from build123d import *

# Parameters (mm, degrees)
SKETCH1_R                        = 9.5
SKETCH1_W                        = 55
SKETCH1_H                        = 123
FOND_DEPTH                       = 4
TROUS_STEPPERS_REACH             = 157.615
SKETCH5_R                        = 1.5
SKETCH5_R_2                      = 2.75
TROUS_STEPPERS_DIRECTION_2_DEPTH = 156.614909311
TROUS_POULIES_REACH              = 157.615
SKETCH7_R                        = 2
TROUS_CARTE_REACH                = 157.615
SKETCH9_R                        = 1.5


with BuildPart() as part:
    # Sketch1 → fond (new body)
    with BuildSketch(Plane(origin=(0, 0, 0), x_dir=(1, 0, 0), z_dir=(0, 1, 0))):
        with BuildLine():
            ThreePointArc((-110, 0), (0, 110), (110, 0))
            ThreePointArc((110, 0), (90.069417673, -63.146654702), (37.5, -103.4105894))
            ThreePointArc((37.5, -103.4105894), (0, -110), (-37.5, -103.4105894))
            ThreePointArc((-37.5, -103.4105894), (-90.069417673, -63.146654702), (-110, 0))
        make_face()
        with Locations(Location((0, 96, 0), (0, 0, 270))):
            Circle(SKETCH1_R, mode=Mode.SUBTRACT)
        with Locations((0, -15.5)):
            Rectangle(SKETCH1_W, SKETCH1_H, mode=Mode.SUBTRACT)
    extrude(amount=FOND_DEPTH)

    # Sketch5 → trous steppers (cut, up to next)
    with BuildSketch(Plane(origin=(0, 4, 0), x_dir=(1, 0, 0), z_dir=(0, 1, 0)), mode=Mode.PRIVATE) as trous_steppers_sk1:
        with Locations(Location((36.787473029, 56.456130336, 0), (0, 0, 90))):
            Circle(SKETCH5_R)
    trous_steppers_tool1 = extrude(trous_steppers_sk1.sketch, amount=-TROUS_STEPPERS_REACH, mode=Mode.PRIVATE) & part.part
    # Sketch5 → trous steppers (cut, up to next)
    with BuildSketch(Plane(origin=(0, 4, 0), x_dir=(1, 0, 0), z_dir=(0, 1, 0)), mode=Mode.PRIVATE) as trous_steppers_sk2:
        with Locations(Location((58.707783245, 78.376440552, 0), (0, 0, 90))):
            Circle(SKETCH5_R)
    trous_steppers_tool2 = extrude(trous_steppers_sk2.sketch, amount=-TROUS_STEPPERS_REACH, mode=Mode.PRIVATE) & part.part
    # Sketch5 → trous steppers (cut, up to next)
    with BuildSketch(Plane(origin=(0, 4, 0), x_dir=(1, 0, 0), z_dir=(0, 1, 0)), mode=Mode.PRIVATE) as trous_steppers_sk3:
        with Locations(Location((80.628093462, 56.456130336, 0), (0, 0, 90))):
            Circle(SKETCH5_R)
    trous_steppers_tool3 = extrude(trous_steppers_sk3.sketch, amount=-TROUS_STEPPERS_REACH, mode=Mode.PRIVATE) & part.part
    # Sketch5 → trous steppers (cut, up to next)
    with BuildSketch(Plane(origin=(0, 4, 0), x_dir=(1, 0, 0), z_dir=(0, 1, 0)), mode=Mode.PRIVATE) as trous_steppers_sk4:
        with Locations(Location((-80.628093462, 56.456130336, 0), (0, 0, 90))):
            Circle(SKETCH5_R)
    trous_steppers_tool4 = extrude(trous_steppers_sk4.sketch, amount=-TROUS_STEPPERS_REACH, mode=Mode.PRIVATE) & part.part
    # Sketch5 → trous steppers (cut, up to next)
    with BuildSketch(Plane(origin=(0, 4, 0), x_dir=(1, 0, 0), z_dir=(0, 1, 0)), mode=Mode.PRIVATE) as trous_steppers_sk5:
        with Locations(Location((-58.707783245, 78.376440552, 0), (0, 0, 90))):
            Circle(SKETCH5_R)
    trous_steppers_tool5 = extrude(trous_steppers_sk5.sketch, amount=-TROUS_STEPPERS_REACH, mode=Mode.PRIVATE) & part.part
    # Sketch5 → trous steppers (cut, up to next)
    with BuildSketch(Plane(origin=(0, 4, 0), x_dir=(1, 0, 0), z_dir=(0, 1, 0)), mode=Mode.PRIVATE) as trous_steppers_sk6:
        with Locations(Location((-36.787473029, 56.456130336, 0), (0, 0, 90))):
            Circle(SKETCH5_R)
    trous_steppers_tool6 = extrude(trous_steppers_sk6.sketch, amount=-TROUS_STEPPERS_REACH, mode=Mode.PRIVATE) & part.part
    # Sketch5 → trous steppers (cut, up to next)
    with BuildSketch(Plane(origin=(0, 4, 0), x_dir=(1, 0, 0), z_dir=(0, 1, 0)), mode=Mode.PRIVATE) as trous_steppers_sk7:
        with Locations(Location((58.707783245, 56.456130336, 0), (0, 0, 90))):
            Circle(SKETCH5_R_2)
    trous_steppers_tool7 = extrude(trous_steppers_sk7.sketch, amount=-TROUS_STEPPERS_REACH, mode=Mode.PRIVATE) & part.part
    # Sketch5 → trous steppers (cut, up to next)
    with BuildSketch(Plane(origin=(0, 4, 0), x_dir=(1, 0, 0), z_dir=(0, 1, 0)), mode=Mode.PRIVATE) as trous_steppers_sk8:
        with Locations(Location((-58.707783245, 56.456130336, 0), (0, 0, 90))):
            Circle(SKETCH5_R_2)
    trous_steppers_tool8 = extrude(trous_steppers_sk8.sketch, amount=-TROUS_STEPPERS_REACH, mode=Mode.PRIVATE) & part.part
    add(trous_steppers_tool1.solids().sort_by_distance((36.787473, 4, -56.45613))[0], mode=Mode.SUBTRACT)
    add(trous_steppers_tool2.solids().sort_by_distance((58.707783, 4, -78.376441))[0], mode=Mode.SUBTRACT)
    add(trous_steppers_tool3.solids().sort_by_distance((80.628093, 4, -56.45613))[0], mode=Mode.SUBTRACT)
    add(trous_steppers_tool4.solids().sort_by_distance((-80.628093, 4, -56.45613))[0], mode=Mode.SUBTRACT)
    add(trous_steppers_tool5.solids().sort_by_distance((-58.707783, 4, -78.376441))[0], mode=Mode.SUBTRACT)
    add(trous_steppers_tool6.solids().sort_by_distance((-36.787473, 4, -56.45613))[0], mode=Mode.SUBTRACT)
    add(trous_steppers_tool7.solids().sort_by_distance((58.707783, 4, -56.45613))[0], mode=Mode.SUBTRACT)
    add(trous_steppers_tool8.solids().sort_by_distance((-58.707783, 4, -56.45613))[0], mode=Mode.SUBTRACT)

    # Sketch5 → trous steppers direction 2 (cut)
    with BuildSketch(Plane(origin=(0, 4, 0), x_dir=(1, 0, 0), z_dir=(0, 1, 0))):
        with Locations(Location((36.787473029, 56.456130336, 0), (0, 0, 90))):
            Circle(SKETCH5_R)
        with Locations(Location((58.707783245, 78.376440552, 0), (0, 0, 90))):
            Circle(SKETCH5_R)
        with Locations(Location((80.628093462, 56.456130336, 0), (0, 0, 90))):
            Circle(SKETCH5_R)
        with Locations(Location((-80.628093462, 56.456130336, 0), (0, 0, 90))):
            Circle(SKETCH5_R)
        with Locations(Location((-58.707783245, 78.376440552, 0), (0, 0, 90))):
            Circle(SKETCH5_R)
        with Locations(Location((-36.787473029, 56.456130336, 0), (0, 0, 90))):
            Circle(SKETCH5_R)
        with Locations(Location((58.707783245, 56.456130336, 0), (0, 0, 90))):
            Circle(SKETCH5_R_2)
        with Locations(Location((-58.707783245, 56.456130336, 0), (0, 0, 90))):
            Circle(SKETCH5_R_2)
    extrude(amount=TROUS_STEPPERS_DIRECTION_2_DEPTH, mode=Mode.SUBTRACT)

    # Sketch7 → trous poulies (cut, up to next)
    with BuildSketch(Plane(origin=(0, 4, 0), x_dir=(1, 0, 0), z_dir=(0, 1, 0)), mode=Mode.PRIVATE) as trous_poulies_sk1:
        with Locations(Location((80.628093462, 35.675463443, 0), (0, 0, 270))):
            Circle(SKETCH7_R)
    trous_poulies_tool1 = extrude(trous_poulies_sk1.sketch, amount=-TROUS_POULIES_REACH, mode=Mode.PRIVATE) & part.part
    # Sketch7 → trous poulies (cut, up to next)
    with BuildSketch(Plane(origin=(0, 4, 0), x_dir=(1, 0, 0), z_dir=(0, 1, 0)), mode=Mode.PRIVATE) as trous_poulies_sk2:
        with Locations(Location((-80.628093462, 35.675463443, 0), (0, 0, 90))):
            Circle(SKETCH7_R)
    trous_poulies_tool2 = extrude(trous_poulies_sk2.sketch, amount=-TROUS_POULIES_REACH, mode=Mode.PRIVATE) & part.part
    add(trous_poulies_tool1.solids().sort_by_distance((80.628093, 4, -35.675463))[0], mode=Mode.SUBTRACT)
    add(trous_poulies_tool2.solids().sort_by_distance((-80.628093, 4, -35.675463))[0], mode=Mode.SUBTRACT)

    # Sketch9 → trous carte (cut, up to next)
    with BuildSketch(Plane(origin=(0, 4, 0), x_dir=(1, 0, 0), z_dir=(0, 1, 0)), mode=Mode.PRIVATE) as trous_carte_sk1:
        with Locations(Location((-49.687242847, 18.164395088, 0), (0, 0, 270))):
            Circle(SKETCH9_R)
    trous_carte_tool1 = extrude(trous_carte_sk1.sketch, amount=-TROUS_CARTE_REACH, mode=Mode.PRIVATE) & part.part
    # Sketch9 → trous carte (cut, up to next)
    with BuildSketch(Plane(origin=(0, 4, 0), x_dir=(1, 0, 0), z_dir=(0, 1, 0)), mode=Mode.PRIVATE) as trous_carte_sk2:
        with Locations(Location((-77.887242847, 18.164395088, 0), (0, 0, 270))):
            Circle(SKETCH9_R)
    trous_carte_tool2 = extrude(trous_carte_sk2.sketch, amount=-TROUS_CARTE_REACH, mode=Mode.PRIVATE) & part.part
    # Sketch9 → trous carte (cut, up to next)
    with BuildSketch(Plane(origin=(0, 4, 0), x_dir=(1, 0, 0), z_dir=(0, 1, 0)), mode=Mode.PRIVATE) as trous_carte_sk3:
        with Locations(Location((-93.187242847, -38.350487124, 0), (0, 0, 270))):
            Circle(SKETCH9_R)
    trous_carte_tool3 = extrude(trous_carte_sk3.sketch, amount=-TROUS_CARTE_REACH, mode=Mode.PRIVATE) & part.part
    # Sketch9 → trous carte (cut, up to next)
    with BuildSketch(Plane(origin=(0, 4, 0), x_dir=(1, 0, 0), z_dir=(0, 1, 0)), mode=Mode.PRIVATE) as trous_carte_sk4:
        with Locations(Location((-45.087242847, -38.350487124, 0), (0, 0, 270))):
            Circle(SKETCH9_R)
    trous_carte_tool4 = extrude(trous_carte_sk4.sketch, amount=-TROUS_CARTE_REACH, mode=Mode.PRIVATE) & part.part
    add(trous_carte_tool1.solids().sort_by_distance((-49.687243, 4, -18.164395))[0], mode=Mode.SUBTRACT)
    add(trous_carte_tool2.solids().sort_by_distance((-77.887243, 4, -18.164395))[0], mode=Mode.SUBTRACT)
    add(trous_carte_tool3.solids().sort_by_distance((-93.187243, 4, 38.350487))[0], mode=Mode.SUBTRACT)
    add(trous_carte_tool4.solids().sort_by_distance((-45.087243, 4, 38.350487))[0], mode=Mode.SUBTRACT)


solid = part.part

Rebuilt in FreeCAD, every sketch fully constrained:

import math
import FreeCAD as App
import Part
import Sketcher

V = App.Vector
Q = App.Units.Quantity

doc = App.newDocument("Part")
body = doc.addObject("PartDesign::Body", "Body")

# Sketch on XZ plane
sketch1 = doc.addObject("Sketcher::SketchObject", "Sketch")
body.addObject(sketch1)
sketch1.AttachmentSupport = (doc.XZ_Plane, [""])
sketch1.MapMode = "FlatFace"
sketch1.addGeometry([
    Part.ArcOfCircle(Part.Circle(V(0, 0, 0), V(0, 0, 1), 110), math.radians(180), math.radians(360)),  # 0
    Part.ArcOfCircle(Part.Circle(V(0, 0, 0), V(0, 0, 1), 110), math.radians(109.93227), math.radians(180)),  # 1
    Part.ArcOfCircle(Part.Circle(V(0, 0, 0), V(0, 0, 1), 110), math.radians(70.06773), math.radians(109.93227)),  # 2
    Part.ArcOfCircle(Part.Circle(V(0, 0, 0), V(0, 0, 1), 110), math.radians(0), math.radians(70.06773)),  # 3
    Part.LineSegment(V(-27.5, 77, 0), V(-27.5, -46, 0)),  # 4
    Part.LineSegment(V(-27.5, -46, 0), V(27.5, -46, 0)),  # 5
    Part.LineSegment(V(27.5, -46, 0), V(27.5, 77, 0)),  # 6
    Part.LineSegment(V(27.5, 77, 0), V(-27.5, 77, 0)),  # 7
    Part.Circle(V(0, -96, 0), V(0, 0, 1), 9.5),  # 8
], False)
sketch1.addConstraint([
    Sketcher.Constraint("Tangent", 0, 1, 1, 2),
    Sketcher.Constraint("Tangent", 1, 1, 2, 2),
    Sketcher.Constraint("Tangent", 2, 1, 3, 2),
    Sketcher.Constraint("Tangent", 3, 1, 0, 2),
    Sketcher.Constraint("Coincident", 4, 2, 5, 1),
    Sketcher.Constraint("Coincident", 5, 2, 6, 1),
    Sketcher.Constraint("Coincident", 6, 2, 7, 1),
    Sketcher.Constraint("Coincident", 7, 2, 4, 1),
    Sketcher.Constraint("Vertical", 4),
    Sketcher.Constraint("Horizontal", 5),
    Sketcher.Constraint("Vertical", 6),
    Sketcher.Constraint("Horizontal", 7),
    Sketcher.Constraint("Coincident", 0, 3, -1, 1),
    Sketcher.Constraint("Equal", 0, 1),
    Sketcher.Constraint("PointOnObject", 8, 3, -2),
    Sketcher.Constraint("PointOnObject", 0, 1, -1),
    Sketcher.Constraint("PointOnObject", 3, 1, -1),
    Sketcher.Constraint("Horizontal", 1, 1, 2, 1),
    Sketcher.Constraint("Diameter", 8, Q("19 mm")),
    Sketcher.Constraint("Radius", 0, Q("110 mm")),
    Sketcher.Constraint("DistanceX", 5, 1, 5, 2, Q("55 mm")),
    Sketcher.Constraint("DistanceY", 4, 2, 4, 1, Q("123 mm")),
    Sketcher.Constraint("DistanceY", 8, 3, -1, 1, Q("96 mm")),
    Sketcher.Constraint("DistanceY", 4, 2, -1, 1, Q("46 mm")),
    Sketcher.Constraint("DistanceX", 1, 1, 2, 1, Q("75 mm")),
    Sketcher.Constraint("DistanceX", 6, 2, 2, 1, Q("10 mm")),
])
pad1 = doc.addObject("PartDesign::Pad", "Pad")
body.addObject(pad1)
pad1.Profile = sketch1
pad1.Length = 4
pad1.Reversed = True

# Sketch on XZ plane
sketch2 = doc.addObject("Sketcher::SketchObject", "Sketch001")
body.addObject(sketch2)
sketch2.AttachmentSupport = (doc.XZ_Plane, [""])
sketch2.MapMode = "FlatFace"
sketch2.AttachmentOffset = App.Placement(V(0, 0, -4), App.Rotation())
sketch2.addGeometry(Part.Circle(V(36.787473, -56.45613, 0), V(0, 0, 1), 1.5), False)
sketch2.addConstraint([
    Sketcher.Constraint("Diameter", 0, Q("3 mm")),
    Sketcher.Constraint("DistanceY", 0, 3, -1, 1, Q("56.45613 mm")),
    Sketcher.Constraint("DistanceX", -1, 1, 0, 3, Q("36.787473 mm")),
])
pocket1 = doc.addObject("PartDesign::Pocket", "Pocket")
body.addObject(pocket1)
pocket1.Profile = sketch2
pocket1.Type = "UpToFirst"
pocket1.Reversed = True

# Sketch on XZ plane
sketch3 = doc.addObject("Sketcher::SketchObject", "Sketch002")
body.addObject(sketch3)
sketch3.AttachmentSupport = (doc.XZ_Plane, [""])
sketch3.MapMode = "FlatFace"
sketch3.AttachmentOffset = App.Placement(V(0, 0, -4), App.Rotation())
sketch3.addGeometry(Part.Circle(V(58.707783, -78.376441, 0), V(0, 0, 1), 1.5), False)
sketch3.addConstraint([
    Sketcher.Constraint("Diameter", 0, Q("3 mm")),
    Sketcher.Constraint("DistanceY", 0, 3, -1, 1, Q("78.376441 mm")),
    Sketcher.Constraint("DistanceX", -1, 1, 0, 3, Q("58.707783 mm")),
])
pocket2 = doc.addObject("PartDesign::Pocket", "Pocket001")
body.addObject(pocket2)
pocket2.Profile = sketch3
pocket2.Type = "UpToFirst"
pocket2.Reversed = True

# Sketch on XZ plane
sketch4 = doc.addObject("Sketcher::SketchObject", "Sketch003")
body.addObject(sketch4)
sketch4.AttachmentSupport = (doc.XZ_Plane, [""])
sketch4.MapMode = "FlatFace"
sketch4.AttachmentOffset = App.Placement(V(0, 0, -4), App.Rotation())
sketch4.addGeometry(Part.Circle(V(80.628093, -56.45613, 0), V(0, 0, 1), 1.5), False)
sketch4.addConstraint([
    Sketcher.Constraint("Diameter", 0, Q("3 mm")),
    Sketcher.Constraint("DistanceY", 0, 3, -1, 1, Q("56.45613 mm")),
    Sketcher.Constraint("DistanceX", -1, 1, 0, 3, Q("80.628093 mm")),
])
pocket3 = doc.addObject("PartDesign::Pocket", "Pocket002")
body.addObject(pocket3)
pocket3.Profile = sketch4
pocket3.Type = "UpToFirst"
pocket3.Reversed = True

# Sketch on XZ plane
sketch5 = doc.addObject("Sketcher::SketchObject", "Sketch004")
body.addObject(sketch5)
sketch5.AttachmentSupport = (doc.XZ_Plane, [""])
sketch5.MapMode = "FlatFace"
sketch5.AttachmentOffset = App.Placement(V(0, 0, -4), App.Rotation())
sketch5.addGeometry(Part.Circle(V(-80.628093, -56.45613, 0), V(0, 0, 1), 1.5), False)
sketch5.addConstraint([
    Sketcher.Constraint("Diameter", 0, Q("3 mm")),
    Sketcher.Constraint("DistanceY", 0, 3, -1, 1, Q("56.45613 mm")),
    Sketcher.Constraint("DistanceX", 0, 3, -1, 1, Q("80.628093 mm")),
])
pocket4 = doc.addObject("PartDesign::Pocket", "Pocket003")
body.addObject(pocket4)
pocket4.Profile = sketch5
pocket4.Type = "UpToFirst"
pocket4.Reversed = True

# Sketch on XZ plane
sketch6 = doc.addObject("Sketcher::SketchObject", "Sketch005")
body.addObject(sketch6)
sketch6.AttachmentSupport = (doc.XZ_Plane, [""])
sketch6.MapMode = "FlatFace"
sketch6.AttachmentOffset = App.Placement(V(0, 0, -4), App.Rotation())
sketch6.addGeometry(Part.Circle(V(-58.707783, -78.376441, 0), V(0, 0, 1), 1.5), False)
sketch6.addConstraint([
    Sketcher.Constraint("Diameter", 0, Q("3 mm")),
    Sketcher.Constraint("DistanceY", 0, 3, -1, 1, Q("78.376441 mm")),
    Sketcher.Constraint("DistanceX", 0, 3, -1, 1, Q("58.707783 mm")),
])
pocket5 = doc.addObject("PartDesign::Pocket", "Pocket004")
body.addObject(pocket5)
pocket5.Profile = sketch6
pocket5.Type = "UpToFirst"
pocket5.Reversed = True

# Sketch on XZ plane
sketch7 = doc.addObject("Sketcher::SketchObject", "Sketch006")
body.addObject(sketch7)
sketch7.AttachmentSupport = (doc.XZ_Plane, [""])
sketch7.MapMode = "FlatFace"
sketch7.AttachmentOffset = App.Placement(V(0, 0, -4), App.Rotation())
sketch7.addGeometry(Part.Circle(V(-36.787473, -56.45613, 0), V(0, 0, 1), 1.5), False)
sketch7.addConstraint([
    Sketcher.Constraint("Diameter", 0, Q("3 mm")),
    Sketcher.Constraint("DistanceY", 0, 3, -1, 1, Q("56.45613 mm")),
    Sketcher.Constraint("DistanceX", 0, 3, -1, 1, Q("36.787473 mm")),
])
pocket6 = doc.addObject("PartDesign::Pocket", "Pocket005")
body.addObject(pocket6)
pocket6.Profile = sketch7
pocket6.Type = "UpToFirst"
pocket6.Reversed = True

# Sketch on XZ plane
sketch8 = doc.addObject("Sketcher::SketchObject", "Sketch007")
body.addObject(sketch8)
sketch8.AttachmentSupport = (doc.XZ_Plane, [""])
sketch8.MapMode = "FlatFace"
sketch8.AttachmentOffset = App.Placement(V(0, 0, -4), App.Rotation())
sketch8.addGeometry(Part.Circle(V(58.707783, -56.45613, 0), V(0, 0, 1), 2.75), False)
sketch8.addConstraint([
    Sketcher.Constraint("Diameter", 0, Q("5.5 mm")),
    Sketcher.Constraint("DistanceY", 0, 3, -1, 1, Q("56.45613 mm")),
    Sketcher.Constraint("DistanceX", -1, 1, 0, 3, Q("58.707783 mm")),
])
pocket7 = doc.addObject("PartDesign::Pocket", "Pocket006")
body.addObject(pocket7)
pocket7.Profile = sketch8
pocket7.Type = "UpToFirst"
pocket7.Reversed = True

# Sketch on XZ plane
sketch9 = doc.addObject("Sketcher::SketchObject", "Sketch008")
body.addObject(sketch9)
sketch9.AttachmentSupport = (doc.XZ_Plane, [""])
sketch9.MapMode = "FlatFace"
sketch9.AttachmentOffset = App.Placement(V(0, 0, -4), App.Rotation())
sketch9.addGeometry(Part.Circle(V(-58.707783, -56.45613, 0), V(0, 0, 1), 2.75), False)
sketch9.addConstraint([
    Sketcher.Constraint("Diameter", 0, Q("5.5 mm")),
    Sketcher.Constraint("DistanceY", 0, 3, -1, 1, Q("56.45613 mm")),
    Sketcher.Constraint("DistanceX", 0, 3, -1, 1, Q("58.707783 mm")),
])
pocket8 = doc.addObject("PartDesign::Pocket", "Pocket007")
body.addObject(pocket8)
pocket8.Profile = sketch9
pocket8.Type = "UpToFirst"
pocket8.Reversed = True

# Sketch on XZ plane
sketch10 = doc.addObject("Sketcher::SketchObject", "Sketch009")
body.addObject(sketch10)
sketch10.AttachmentSupport = (doc.XZ_Plane, [""])
sketch10.MapMode = "FlatFace"
sketch10.AttachmentOffset = App.Placement(V(0, 0, -4), App.Rotation())
sketch10.addGeometry([
    Part.Circle(V(36.787473, -56.45613, 0), V(0, 0, 1), 1.5),  # 0
    Part.Circle(V(58.707783, -78.376441, 0), V(0, 0, 1), 1.5),  # 1
    Part.Circle(V(80.628093, -56.45613, 0), V(0, 0, 1), 1.5),  # 2
    Part.Circle(V(-80.628093, -56.45613, 0), V(0, 0, 1), 1.5),  # 3
    Part.Circle(V(-58.707783, -78.376441, 0), V(0, 0, 1), 1.5),  # 4
    Part.Circle(V(-36.787473, -56.45613, 0), V(0, 0, 1), 1.5),  # 5
    Part.Circle(V(58.707783, -56.45613, 0), V(0, 0, 1), 2.75),  # 6
    Part.Circle(V(-58.707783, -56.45613, 0), V(0, 0, 1), 2.75),  # 7
], False)
sketch10.addConstraint([
    Sketcher.Constraint("Equal", 0, 1),
    Sketcher.Constraint("Equal", 1, 2),
    Sketcher.Constraint("Equal", 2, 3),
    Sketcher.Constraint("Equal", 3, 4),
    Sketcher.Constraint("Equal", 4, 5),
    Sketcher.Constraint("Equal", 6, 7),
    Sketcher.Constraint("Symmetric", 2, 3, 3, 3, -2),
    Sketcher.Constraint("Symmetric", 1, 3, 4, 3, -2),
    Sketcher.Constraint("Symmetric", 0, 3, 5, 3, -2),
    Sketcher.Constraint("Symmetric", 6, 3, 7, 3, -2),
    Sketcher.Constraint("Horizontal", 0, 3, 2, 3),
    Sketcher.Constraint("Horizontal", 5, 3, 6, 3),
    Sketcher.Constraint("Vertical", 1, 3, 6, 3),
    Sketcher.Constraint("Diameter", 0, Q("3 mm")),
    Sketcher.Constraint("Diameter", 6, Q("5.5 mm")),
    Sketcher.Constraint("DistanceY", 0, 3, -1, 1, Q("56.45613 mm")),
    Sketcher.Constraint("DistanceY", 1, 3, -1, 1, Q("78.376441 mm")),
    Sketcher.Constraint("DistanceX", 0, 3, 1, 3, Q("21.92031 mm")),
    Sketcher.Constraint("DistanceX", 1, 3, 2, 3, Q("21.92031 mm")),
    Sketcher.Constraint("DistanceX", -1, 1, 0, 3, Q("36.787473 mm")),
])
pocket9 = doc.addObject("PartDesign::Pocket", "Pocket008")
body.addObject(pocket9)
pocket9.Profile = sketch10
pocket9.Length = 156.614909

# Sketch on XZ plane
sketch11 = doc.addObject("Sketcher::SketchObject", "Sketch010")
body.addObject(sketch11)
sketch11.AttachmentSupport = (doc.XZ_Plane, [""])
sketch11.MapMode = "FlatFace"
sketch11.AttachmentOffset = App.Placement(V(0, 0, -4), App.Rotation())
sketch11.addGeometry(Part.Circle(V(80.628093, -35.675463, 0), V(0, 0, 1), 2), False)
sketch11.addConstraint([
    Sketcher.Constraint("Diameter", 0, Q("4 mm")),
    Sketcher.Constraint("DistanceX", -1, 1, 0, 3, Q("80.628093 mm")),
    Sketcher.Constraint("DistanceY", 0, 3, -1, 1, Q("35.675463 mm")),
])
pocket10 = doc.addObject("PartDesign::Pocket", "Pocket009")
body.addObject(pocket10)
pocket10.Profile = sketch11
pocket10.Type = "UpToFirst"
pocket10.Reversed = True

# Sketch on XZ plane
sketch12 = doc.addObject("Sketcher::SketchObject", "Sketch011")
body.addObject(sketch12)
sketch12.AttachmentSupport = (doc.XZ_Plane, [""])
sketch12.MapMode = "FlatFace"
sketch12.AttachmentOffset = App.Placement(V(0, 0, -4), App.Rotation())
sketch12.addGeometry(Part.Circle(V(-80.628093, -35.675463, 0), V(0, 0, 1), 2), False)
sketch12.addConstraint([
    Sketcher.Constraint("Diameter", 0, Q("4 mm")),
    Sketcher.Constraint("DistanceX", 0, 3, -1, 1, Q("80.628093 mm")),
    Sketcher.Constraint("DistanceY", 0, 3, -1, 1, Q("35.675463 mm")),
])
pocket11 = doc.addObject("PartDesign::Pocket", "Pocket010")
body.addObject(pocket11)
pocket11.Profile = sketch12
pocket11.Type = "UpToFirst"
pocket11.Reversed = True

# Sketch on XZ plane
sketch13 = doc.addObject("Sketcher::SketchObject", "Sketch012")
body.addObject(sketch13)
sketch13.AttachmentSupport = (doc.XZ_Plane, [""])
sketch13.MapMode = "FlatFace"
sketch13.AttachmentOffset = App.Placement(V(0, 0, -4), App.Rotation())
sketch13.addGeometry(Part.Circle(V(-49.687243, -18.164395, 0), V(0, 0, 1), 1.5), False)
sketch13.addConstraint([
    Sketcher.Constraint("Diameter", 0, Q("3 mm")),
    Sketcher.Constraint("DistanceX", 0, 3, -1, 1, Q("49.687243 mm")),
    Sketcher.Constraint("DistanceY", 0, 3, -1, 1, Q("18.164395 mm")),
])
pocket12 = doc.addObject("PartDesign::Pocket", "Pocket011")
body.addObject(pocket12)
pocket12.Profile = sketch13
pocket12.Type = "UpToFirst"
pocket12.Reversed = True

# Sketch on XZ plane
sketch14 = doc.addObject("Sketcher::SketchObject", "Sketch013")
body.addObject(sketch14)
sketch14.AttachmentSupport = (doc.XZ_Plane, [""])
sketch14.MapMode = "FlatFace"
sketch14.AttachmentOffset = App.Placement(V(0, 0, -4), App.Rotation())
sketch14.addGeometry(Part.Circle(V(-77.887243, -18.164395, 0), V(0, 0, 1), 1.5), False)
sketch14.addConstraint([
    Sketcher.Constraint("Diameter", 0, Q("3 mm")),
    Sketcher.Constraint("DistanceX", 0, 3, -1, 1, Q("77.887243 mm")),
    Sketcher.Constraint("DistanceY", 0, 3, -1, 1, Q("18.164395 mm")),
])
pocket13 = doc.addObject("PartDesign::Pocket", "Pocket012")
body.addObject(pocket13)
pocket13.Profile = sketch14
pocket13.Type = "UpToFirst"
pocket13.Reversed = True

# Sketch on XZ plane
sketch15 = doc.addObject("Sketcher::SketchObject", "Sketch014")
body.addObject(sketch15)
sketch15.AttachmentSupport = (doc.XZ_Plane, [""])
sketch15.MapMode = "FlatFace"
sketch15.AttachmentOffset = App.Placement(V(0, 0, -4), App.Rotation())
sketch15.addGeometry(Part.Circle(V(-93.187243, 38.350487, 0), V(0, 0, 1), 1.5), False)
sketch15.addConstraint([
    Sketcher.Constraint("Diameter", 0, Q("3 mm")),
    Sketcher.Constraint("DistanceX", 0, 3, -1, 1, Q("93.187243 mm")),
    Sketcher.Constraint("DistanceY", -1, 1, 0, 3, Q("38.350487 mm")),
])
pocket14 = doc.addObject("PartDesign::Pocket", "Pocket013")
body.addObject(pocket14)
pocket14.Profile = sketch15
pocket14.Type = "UpToFirst"
pocket14.Reversed = True

# Sketch on XZ plane
sketch16 = doc.addObject("Sketcher::SketchObject", "Sketch015")
body.addObject(sketch16)
sketch16.AttachmentSupport = (doc.XZ_Plane, [""])
sketch16.MapMode = "FlatFace"
sketch16.AttachmentOffset = App.Placement(V(0, 0, -4), App.Rotation())
sketch16.addGeometry(Part.Circle(V(-45.087243, 38.350487, 0), V(0, 0, 1), 1.5), False)
sketch16.addConstraint([
    Sketcher.Constraint("Diameter", 0, Q("3 mm")),
    Sketcher.Constraint("DistanceX", 0, 3, -1, 1, Q("45.087243 mm")),
    Sketcher.Constraint("DistanceY", -1, 1, 0, 3, Q("38.350487 mm")),
])
pocket15 = doc.addObject("PartDesign::Pocket", "Pocket014")
body.addObject(pocket15)
pocket15.Profile = sketch16
pocket15.Type = "UpToFirst"
pocket15.Reversed = True

doc.recompute()
